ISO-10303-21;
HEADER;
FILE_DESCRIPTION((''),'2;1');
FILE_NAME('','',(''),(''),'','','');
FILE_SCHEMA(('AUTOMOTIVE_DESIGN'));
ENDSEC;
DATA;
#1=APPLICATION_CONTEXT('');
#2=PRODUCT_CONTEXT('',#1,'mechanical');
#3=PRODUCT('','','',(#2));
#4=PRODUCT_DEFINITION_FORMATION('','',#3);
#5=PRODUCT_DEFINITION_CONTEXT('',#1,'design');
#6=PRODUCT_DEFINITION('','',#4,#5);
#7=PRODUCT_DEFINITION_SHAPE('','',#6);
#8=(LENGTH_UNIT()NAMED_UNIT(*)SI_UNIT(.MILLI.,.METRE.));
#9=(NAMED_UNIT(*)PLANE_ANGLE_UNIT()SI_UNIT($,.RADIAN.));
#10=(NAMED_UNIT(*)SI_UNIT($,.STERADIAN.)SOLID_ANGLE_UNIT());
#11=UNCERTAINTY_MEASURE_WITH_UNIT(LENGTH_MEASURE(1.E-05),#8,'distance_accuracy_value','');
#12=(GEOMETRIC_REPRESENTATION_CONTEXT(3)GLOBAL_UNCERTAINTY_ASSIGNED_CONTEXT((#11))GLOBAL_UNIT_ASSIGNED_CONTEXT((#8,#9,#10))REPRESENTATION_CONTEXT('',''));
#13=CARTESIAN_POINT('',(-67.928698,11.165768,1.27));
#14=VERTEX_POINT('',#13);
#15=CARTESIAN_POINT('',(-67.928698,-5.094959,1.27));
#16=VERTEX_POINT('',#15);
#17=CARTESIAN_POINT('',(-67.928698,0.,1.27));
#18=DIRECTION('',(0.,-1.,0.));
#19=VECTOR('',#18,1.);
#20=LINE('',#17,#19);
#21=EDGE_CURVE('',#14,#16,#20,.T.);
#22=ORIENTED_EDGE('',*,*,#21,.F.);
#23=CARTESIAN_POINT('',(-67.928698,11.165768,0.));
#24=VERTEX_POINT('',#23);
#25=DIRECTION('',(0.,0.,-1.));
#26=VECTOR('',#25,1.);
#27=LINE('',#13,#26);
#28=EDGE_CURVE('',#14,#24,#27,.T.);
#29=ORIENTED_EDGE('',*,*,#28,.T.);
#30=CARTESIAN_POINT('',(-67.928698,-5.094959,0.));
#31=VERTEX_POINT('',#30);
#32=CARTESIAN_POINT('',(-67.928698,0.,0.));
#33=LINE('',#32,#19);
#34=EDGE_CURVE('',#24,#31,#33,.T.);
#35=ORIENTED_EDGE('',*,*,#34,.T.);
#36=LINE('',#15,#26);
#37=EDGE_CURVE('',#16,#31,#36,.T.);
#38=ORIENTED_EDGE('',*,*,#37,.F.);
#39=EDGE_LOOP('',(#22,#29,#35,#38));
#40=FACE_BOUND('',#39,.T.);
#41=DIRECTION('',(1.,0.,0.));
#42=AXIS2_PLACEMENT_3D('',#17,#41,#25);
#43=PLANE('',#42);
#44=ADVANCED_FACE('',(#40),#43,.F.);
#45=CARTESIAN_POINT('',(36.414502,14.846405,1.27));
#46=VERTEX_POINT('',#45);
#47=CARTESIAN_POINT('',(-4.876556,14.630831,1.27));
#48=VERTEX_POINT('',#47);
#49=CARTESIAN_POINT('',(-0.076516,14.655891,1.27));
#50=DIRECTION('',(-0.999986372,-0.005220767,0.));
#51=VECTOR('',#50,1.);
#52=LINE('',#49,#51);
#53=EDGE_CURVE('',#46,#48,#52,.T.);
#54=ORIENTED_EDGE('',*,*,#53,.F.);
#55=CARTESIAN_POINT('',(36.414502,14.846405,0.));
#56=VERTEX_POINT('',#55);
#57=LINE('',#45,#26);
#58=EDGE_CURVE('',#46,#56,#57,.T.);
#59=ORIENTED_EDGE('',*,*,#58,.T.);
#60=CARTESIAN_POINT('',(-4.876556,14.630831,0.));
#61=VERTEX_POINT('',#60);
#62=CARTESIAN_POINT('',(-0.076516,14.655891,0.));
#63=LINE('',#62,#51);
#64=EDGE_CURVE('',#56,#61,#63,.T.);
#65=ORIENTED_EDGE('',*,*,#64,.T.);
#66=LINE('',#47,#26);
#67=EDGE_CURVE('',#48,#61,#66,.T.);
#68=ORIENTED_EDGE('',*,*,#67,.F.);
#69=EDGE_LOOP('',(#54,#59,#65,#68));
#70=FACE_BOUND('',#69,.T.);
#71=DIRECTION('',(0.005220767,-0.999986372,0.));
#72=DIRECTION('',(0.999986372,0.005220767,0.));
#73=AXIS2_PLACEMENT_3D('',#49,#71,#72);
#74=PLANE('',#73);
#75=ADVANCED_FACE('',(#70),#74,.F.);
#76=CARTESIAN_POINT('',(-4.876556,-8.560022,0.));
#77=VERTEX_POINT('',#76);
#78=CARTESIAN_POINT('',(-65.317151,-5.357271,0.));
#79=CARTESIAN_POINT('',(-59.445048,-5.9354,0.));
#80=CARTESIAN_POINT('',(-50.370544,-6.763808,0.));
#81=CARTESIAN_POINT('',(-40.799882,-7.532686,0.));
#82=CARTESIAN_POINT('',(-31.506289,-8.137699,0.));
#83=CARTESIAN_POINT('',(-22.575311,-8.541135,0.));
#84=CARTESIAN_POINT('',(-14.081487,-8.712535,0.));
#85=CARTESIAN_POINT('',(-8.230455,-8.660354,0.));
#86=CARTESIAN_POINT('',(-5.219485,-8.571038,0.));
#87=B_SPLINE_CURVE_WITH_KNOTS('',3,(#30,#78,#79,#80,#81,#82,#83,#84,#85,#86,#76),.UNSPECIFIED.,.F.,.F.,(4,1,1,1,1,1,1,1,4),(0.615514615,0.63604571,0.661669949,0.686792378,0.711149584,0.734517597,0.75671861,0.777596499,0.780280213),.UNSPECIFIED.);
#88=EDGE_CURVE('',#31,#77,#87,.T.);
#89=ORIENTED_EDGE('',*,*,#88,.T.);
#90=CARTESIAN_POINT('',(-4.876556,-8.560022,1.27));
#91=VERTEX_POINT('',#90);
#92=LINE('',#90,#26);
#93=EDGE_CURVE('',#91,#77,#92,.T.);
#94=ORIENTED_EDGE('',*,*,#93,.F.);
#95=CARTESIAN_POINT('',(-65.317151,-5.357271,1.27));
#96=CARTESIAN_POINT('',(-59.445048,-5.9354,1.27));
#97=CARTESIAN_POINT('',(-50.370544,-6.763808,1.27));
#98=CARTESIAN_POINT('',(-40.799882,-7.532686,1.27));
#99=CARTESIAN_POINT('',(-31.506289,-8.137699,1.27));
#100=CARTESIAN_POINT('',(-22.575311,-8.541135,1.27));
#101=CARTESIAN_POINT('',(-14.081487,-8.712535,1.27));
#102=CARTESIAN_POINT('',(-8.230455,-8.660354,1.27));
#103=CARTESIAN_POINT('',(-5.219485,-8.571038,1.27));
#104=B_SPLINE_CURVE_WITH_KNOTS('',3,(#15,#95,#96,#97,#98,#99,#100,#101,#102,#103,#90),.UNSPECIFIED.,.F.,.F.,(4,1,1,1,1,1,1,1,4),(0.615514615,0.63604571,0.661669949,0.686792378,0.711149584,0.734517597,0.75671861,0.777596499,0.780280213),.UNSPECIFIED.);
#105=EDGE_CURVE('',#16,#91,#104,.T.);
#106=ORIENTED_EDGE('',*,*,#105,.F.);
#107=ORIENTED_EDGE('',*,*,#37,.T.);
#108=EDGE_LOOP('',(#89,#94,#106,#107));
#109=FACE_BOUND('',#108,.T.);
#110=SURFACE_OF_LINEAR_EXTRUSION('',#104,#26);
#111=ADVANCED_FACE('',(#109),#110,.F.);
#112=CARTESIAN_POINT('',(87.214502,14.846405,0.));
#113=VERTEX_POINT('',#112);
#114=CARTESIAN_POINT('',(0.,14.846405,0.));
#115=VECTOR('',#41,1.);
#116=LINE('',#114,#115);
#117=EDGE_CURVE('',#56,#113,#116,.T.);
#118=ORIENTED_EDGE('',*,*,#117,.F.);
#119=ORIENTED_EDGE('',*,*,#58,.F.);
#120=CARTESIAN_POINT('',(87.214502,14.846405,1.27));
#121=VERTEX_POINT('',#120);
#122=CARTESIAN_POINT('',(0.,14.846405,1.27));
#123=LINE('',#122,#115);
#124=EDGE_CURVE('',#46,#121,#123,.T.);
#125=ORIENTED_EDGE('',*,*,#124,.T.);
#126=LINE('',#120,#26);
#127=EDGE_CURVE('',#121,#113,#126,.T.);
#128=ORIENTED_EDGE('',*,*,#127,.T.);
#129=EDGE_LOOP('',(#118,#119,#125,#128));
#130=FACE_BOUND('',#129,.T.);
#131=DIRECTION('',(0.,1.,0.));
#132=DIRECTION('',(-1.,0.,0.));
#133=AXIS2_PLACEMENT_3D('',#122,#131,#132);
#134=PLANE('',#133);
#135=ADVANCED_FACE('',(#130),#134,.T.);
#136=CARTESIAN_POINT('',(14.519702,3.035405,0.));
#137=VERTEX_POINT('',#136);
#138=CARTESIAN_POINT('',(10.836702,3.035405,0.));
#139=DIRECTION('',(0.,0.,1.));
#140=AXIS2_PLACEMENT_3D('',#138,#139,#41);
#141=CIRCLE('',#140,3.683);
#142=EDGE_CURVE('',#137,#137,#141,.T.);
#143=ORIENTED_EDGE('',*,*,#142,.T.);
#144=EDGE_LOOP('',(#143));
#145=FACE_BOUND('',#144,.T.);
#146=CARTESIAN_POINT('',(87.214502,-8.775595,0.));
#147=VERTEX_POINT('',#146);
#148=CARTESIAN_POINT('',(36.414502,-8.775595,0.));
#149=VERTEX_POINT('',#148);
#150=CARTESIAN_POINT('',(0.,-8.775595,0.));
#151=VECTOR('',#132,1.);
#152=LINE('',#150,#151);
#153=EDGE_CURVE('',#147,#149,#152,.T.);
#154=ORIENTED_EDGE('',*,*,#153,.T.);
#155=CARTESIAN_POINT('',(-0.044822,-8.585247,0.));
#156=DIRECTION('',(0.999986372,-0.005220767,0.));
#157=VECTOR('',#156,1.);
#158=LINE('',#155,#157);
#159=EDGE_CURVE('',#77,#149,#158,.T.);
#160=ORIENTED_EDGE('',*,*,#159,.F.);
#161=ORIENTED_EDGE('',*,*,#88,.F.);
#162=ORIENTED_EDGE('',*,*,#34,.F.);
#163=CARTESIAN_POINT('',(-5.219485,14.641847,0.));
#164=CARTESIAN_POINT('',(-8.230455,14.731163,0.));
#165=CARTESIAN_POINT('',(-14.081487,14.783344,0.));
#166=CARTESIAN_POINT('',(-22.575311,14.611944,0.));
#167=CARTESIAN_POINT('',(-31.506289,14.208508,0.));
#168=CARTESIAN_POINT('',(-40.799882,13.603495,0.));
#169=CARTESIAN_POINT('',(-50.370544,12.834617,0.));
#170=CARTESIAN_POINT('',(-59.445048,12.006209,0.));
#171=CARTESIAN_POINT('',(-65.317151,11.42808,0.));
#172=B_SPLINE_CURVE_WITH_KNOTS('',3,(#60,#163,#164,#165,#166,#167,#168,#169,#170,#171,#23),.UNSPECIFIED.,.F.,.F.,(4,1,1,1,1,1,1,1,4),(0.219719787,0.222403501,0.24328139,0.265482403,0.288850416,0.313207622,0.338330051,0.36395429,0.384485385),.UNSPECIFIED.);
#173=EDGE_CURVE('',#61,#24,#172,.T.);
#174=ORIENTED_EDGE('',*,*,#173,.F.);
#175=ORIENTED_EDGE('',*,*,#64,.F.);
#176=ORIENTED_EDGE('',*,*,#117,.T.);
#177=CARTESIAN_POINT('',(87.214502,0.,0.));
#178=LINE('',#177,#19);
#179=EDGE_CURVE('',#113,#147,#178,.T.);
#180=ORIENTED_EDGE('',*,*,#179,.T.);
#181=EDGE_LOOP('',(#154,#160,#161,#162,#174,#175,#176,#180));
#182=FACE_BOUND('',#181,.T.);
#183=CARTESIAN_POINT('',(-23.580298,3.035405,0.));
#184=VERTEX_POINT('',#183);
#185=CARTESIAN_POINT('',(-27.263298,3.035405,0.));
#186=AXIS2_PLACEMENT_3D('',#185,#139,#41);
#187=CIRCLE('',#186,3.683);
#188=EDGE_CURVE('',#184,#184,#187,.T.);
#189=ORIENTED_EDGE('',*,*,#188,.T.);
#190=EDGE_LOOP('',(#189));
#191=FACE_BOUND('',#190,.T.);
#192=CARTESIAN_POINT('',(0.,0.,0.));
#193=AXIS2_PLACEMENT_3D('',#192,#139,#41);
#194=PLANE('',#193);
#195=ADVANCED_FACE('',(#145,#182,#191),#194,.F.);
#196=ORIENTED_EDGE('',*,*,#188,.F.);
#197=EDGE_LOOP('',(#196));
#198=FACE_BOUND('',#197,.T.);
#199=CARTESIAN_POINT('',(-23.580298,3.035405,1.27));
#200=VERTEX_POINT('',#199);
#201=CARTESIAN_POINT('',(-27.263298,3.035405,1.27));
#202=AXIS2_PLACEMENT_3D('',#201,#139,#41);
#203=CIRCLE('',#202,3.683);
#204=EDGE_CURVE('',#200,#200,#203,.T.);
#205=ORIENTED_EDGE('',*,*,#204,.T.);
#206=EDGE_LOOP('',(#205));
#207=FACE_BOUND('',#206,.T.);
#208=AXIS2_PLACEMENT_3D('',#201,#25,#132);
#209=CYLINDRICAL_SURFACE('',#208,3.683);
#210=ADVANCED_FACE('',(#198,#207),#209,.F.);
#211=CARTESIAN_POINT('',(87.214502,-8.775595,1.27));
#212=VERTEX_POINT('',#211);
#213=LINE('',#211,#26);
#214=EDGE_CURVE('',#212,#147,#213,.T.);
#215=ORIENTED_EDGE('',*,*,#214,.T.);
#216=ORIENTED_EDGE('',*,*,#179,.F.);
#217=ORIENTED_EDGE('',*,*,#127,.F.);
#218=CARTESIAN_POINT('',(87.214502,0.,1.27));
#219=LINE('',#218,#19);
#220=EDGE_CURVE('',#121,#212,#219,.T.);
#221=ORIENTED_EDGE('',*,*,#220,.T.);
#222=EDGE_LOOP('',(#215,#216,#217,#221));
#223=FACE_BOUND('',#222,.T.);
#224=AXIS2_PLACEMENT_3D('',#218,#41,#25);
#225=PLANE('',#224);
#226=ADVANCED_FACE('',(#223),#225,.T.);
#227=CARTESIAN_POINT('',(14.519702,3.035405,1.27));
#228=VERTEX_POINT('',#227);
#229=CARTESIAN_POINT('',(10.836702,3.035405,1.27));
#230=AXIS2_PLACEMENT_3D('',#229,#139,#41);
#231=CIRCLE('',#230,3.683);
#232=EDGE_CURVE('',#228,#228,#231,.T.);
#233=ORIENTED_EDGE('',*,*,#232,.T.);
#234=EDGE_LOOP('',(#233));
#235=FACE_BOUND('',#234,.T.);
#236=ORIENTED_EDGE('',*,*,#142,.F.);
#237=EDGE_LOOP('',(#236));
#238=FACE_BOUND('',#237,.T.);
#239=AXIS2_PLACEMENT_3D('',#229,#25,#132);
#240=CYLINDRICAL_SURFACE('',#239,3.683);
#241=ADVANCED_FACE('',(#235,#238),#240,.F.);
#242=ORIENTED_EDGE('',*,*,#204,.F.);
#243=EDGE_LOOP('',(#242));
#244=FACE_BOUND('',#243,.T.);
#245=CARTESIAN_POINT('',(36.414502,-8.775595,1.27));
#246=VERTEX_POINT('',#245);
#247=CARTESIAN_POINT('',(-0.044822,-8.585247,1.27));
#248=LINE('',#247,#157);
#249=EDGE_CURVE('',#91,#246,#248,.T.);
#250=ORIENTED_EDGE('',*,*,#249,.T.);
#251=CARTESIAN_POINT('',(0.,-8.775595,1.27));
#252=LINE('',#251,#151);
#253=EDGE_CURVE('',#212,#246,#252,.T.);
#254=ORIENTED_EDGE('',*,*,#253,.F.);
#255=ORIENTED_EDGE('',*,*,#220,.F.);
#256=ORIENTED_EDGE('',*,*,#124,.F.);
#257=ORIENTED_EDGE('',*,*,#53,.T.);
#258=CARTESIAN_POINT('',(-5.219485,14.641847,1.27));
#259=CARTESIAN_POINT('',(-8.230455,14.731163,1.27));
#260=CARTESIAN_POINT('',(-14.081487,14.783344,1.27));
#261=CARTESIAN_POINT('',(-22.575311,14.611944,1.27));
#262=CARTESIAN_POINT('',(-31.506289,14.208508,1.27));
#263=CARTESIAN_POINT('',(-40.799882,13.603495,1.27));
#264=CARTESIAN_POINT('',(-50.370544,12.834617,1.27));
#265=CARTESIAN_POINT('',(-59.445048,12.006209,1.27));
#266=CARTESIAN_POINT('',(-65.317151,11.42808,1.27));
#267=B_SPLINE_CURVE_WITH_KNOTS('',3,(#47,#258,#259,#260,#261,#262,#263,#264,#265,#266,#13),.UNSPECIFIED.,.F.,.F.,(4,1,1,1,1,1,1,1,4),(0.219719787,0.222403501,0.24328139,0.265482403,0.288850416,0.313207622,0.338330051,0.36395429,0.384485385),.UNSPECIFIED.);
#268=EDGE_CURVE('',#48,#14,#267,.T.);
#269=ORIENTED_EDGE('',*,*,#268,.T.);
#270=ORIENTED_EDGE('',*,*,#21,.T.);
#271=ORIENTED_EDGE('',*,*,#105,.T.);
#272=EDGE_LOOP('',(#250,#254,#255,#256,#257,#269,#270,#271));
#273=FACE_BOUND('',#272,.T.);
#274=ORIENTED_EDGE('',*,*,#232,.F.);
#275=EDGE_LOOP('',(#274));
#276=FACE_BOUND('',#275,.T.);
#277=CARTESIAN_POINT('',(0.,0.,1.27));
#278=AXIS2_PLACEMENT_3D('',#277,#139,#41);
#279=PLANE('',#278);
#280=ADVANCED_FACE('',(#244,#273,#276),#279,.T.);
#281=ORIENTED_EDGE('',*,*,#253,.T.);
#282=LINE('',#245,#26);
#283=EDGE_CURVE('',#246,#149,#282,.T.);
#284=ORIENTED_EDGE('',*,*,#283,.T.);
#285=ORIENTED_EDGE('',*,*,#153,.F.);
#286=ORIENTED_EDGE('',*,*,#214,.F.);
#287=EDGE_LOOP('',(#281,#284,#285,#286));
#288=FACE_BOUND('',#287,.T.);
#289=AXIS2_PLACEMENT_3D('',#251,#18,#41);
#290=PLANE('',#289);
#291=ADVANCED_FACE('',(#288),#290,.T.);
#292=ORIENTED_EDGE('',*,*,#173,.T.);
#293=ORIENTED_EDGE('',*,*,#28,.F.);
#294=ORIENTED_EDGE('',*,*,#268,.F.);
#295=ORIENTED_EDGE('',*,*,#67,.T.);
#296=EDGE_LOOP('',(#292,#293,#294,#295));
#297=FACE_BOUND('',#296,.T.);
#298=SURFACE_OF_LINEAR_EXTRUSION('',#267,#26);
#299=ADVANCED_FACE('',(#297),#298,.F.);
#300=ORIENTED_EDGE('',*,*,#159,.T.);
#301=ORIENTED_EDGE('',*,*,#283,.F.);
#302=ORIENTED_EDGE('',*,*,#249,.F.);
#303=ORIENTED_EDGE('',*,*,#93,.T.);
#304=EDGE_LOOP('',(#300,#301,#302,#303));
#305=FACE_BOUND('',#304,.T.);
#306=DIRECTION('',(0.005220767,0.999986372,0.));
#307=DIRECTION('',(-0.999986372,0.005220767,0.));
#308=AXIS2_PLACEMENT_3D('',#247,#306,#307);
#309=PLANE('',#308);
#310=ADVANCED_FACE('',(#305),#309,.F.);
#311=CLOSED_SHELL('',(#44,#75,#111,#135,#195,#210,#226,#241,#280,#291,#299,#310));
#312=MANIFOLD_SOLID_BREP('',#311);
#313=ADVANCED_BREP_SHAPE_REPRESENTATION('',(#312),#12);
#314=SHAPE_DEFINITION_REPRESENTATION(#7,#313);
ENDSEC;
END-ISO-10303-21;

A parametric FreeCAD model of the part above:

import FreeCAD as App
import Part
import Sketcher
from FreeCAD import Vector
Q = App.Units.Quantity

doc = App.newDocument("Part")
body = doc.addObject("PartDesign::Body", "Body")

sketch1 = body.newObject("Sketcher::SketchObject", "Sketch")
sketch1.AttachmentSupport = (doc.getObject("XY_Plane"), [""])
sketch1.MapMode = "FlatFace"
sketch1.addGeometry([
    Part.LineSegment(Vector(-67.928698, 11.165768, 0), Vector(-67.928698, -5.094959, 0)),
    Part.BSplineCurve([Vector(-67.928698, -5.094959, 0), Vector(-65.317151, -5.357271, 0), Vector(-59.445048, -5.9354, 0), Vector(-50.370544, -6.763808, 0), Vector(-40.799882, -7.532686, 0), Vector(-31.506289, -8.137699, 0), Vector(-22.575311, -8.541135, 0), Vector(-14.081487, -8.712535, 0), Vector(-8.230455, -8.660354, 0), Vector(-5.219485, -8.571038, 0), Vector(-4.876556, -8.560022, 0)], [4, 1, 1, 1, 1, 1, 1, 1, 4], [0.615514615, 0.63604571, 0.661669949, 0.686792378, 0.711149584, 0.734517597, 0.75671861, 0.777596499, 0.780280213], False, 3, [1, 1, 1, 1, 1, 1, 1, 1, 1, 1, 1], False),
    Part.LineSegment(Vector(-4.876556, -8.560022, 0), Vector(36.414502, -8.775595, 0)),
    Part.LineSegment(Vector(36.414502, -8.775595, 0), Vector(87.214502, -8.775595, 0)),
    Part.LineSegment(Vector(87.214502, -8.775595, 0), Vector(87.214502, 14.846405, 0)),
    Part.LineSegment(Vector(87.214502, 14.846405, 0), Vector(36.414502, 14.846405, 0)),
    Part.LineSegment(Vector(36.414502, 14.846405, 0), Vector(-4.876556, 14.630831, 0)),
    Part.BSplineCurve([Vector(-4.876556, 14.630831, 0), Vector(-5.219485, 14.641847, 0), Vector(-8.230455, 14.731163, 0), Vector(-14.081487, 14.783344, 0), Vector(-22.575311, 14.611944, 0), Vector(-31.506289, 14.208508, 0), Vector(-40.799882, 13.603495, 0), Vector(-50.370544, 12.834617, 0), Vector(-59.445048, 12.006209, 0), Vector(-65.317151, 11.42808, 0), Vector(-67.928698, 11.165768, 0)], [4, 1, 1, 1, 1, 1, 1, 1, 4], [0.219719787, 0.222403501, 0.24328139, 0.265482403, 0.288850416, 0.313207622, 0.338330051, 0.36395429, 0.384485385], False, 3, [1, 1, 1, 1, 1, 1, 1, 1, 1, 1, 1], False),
    Part.Circle(Vector(-27.263298, 3.035405, 0), Vector(0, 0, 1), 3.683),
    Part.Circle(Vector(10.836702, 3.035405, 0), Vector(0, 0, 1), 3.683),
], False)
sketch1.addConstraint([
    Sketcher.Constraint("Block", 1),
    Sketcher.Constraint("Block", 7),
    Sketcher.Constraint("Coincident", 0, 2, 1, 1),
    Sketcher.Constraint("Coincident", 1, 2, 2, 1),
    Sketcher.Constraint("Coincident", 2, 2, 3, 1),
    Sketcher.Constraint("Coincident", 3, 2, 4, 1),
    Sketcher.Constraint("Coincident", 4, 2, 5, 1),
    Sketcher.Constraint("Coincident", 5, 2, 6, 1),
    Sketcher.Constraint("Coincident", 6, 2, 7, 1),
    Sketcher.Constraint("Coincident", 7, 2, 0, 1),
    Sketcher.Constraint("Horizontal", 3),
    Sketcher.Constraint("Vertical", 4),
    Sketcher.Constraint("Horizontal", 5),
    Sketcher.Constraint("Equal", 8, 9),
    Sketcher.Constraint("Horizontal", 8, 3, 9, 3),
    Sketcher.Constraint("Vertical", 2, 2, 5, 2),
    Sketcher.Constraint("Diameter", 8, Q("0.29 in")),
    Sketcher.Constraint("DistanceX", 3, 1, 3, 2, Q("2 in")),
    Sketcher.Constraint("DistanceY", 4, 1, 4, 2, Q("0.93 in")),
    Sketcher.Constraint("DistanceX", 8, 3, 9, 3, Q("1.5 in")),
    Sketcher.Constraint("DistanceX", 0, 2, 8, 3, Q("1.601 in")),
    Sketcher.Constraint("DistanceX", 9, 3, 2, 2, Q("1.007 in")),
    Sketcher.Constraint("DistanceY", 2, 2, 9, 3, Q("0.465 in")),
    Sketcher.Constraint("DistanceY", -1, 1, 8, 3, 3.035405),
])
pad1 = body.newObject("PartDesign::Pad", "Pad")
pad1.Profile = sketch1
pad1.Length = Q("0.05 in")

doc.recompute()
